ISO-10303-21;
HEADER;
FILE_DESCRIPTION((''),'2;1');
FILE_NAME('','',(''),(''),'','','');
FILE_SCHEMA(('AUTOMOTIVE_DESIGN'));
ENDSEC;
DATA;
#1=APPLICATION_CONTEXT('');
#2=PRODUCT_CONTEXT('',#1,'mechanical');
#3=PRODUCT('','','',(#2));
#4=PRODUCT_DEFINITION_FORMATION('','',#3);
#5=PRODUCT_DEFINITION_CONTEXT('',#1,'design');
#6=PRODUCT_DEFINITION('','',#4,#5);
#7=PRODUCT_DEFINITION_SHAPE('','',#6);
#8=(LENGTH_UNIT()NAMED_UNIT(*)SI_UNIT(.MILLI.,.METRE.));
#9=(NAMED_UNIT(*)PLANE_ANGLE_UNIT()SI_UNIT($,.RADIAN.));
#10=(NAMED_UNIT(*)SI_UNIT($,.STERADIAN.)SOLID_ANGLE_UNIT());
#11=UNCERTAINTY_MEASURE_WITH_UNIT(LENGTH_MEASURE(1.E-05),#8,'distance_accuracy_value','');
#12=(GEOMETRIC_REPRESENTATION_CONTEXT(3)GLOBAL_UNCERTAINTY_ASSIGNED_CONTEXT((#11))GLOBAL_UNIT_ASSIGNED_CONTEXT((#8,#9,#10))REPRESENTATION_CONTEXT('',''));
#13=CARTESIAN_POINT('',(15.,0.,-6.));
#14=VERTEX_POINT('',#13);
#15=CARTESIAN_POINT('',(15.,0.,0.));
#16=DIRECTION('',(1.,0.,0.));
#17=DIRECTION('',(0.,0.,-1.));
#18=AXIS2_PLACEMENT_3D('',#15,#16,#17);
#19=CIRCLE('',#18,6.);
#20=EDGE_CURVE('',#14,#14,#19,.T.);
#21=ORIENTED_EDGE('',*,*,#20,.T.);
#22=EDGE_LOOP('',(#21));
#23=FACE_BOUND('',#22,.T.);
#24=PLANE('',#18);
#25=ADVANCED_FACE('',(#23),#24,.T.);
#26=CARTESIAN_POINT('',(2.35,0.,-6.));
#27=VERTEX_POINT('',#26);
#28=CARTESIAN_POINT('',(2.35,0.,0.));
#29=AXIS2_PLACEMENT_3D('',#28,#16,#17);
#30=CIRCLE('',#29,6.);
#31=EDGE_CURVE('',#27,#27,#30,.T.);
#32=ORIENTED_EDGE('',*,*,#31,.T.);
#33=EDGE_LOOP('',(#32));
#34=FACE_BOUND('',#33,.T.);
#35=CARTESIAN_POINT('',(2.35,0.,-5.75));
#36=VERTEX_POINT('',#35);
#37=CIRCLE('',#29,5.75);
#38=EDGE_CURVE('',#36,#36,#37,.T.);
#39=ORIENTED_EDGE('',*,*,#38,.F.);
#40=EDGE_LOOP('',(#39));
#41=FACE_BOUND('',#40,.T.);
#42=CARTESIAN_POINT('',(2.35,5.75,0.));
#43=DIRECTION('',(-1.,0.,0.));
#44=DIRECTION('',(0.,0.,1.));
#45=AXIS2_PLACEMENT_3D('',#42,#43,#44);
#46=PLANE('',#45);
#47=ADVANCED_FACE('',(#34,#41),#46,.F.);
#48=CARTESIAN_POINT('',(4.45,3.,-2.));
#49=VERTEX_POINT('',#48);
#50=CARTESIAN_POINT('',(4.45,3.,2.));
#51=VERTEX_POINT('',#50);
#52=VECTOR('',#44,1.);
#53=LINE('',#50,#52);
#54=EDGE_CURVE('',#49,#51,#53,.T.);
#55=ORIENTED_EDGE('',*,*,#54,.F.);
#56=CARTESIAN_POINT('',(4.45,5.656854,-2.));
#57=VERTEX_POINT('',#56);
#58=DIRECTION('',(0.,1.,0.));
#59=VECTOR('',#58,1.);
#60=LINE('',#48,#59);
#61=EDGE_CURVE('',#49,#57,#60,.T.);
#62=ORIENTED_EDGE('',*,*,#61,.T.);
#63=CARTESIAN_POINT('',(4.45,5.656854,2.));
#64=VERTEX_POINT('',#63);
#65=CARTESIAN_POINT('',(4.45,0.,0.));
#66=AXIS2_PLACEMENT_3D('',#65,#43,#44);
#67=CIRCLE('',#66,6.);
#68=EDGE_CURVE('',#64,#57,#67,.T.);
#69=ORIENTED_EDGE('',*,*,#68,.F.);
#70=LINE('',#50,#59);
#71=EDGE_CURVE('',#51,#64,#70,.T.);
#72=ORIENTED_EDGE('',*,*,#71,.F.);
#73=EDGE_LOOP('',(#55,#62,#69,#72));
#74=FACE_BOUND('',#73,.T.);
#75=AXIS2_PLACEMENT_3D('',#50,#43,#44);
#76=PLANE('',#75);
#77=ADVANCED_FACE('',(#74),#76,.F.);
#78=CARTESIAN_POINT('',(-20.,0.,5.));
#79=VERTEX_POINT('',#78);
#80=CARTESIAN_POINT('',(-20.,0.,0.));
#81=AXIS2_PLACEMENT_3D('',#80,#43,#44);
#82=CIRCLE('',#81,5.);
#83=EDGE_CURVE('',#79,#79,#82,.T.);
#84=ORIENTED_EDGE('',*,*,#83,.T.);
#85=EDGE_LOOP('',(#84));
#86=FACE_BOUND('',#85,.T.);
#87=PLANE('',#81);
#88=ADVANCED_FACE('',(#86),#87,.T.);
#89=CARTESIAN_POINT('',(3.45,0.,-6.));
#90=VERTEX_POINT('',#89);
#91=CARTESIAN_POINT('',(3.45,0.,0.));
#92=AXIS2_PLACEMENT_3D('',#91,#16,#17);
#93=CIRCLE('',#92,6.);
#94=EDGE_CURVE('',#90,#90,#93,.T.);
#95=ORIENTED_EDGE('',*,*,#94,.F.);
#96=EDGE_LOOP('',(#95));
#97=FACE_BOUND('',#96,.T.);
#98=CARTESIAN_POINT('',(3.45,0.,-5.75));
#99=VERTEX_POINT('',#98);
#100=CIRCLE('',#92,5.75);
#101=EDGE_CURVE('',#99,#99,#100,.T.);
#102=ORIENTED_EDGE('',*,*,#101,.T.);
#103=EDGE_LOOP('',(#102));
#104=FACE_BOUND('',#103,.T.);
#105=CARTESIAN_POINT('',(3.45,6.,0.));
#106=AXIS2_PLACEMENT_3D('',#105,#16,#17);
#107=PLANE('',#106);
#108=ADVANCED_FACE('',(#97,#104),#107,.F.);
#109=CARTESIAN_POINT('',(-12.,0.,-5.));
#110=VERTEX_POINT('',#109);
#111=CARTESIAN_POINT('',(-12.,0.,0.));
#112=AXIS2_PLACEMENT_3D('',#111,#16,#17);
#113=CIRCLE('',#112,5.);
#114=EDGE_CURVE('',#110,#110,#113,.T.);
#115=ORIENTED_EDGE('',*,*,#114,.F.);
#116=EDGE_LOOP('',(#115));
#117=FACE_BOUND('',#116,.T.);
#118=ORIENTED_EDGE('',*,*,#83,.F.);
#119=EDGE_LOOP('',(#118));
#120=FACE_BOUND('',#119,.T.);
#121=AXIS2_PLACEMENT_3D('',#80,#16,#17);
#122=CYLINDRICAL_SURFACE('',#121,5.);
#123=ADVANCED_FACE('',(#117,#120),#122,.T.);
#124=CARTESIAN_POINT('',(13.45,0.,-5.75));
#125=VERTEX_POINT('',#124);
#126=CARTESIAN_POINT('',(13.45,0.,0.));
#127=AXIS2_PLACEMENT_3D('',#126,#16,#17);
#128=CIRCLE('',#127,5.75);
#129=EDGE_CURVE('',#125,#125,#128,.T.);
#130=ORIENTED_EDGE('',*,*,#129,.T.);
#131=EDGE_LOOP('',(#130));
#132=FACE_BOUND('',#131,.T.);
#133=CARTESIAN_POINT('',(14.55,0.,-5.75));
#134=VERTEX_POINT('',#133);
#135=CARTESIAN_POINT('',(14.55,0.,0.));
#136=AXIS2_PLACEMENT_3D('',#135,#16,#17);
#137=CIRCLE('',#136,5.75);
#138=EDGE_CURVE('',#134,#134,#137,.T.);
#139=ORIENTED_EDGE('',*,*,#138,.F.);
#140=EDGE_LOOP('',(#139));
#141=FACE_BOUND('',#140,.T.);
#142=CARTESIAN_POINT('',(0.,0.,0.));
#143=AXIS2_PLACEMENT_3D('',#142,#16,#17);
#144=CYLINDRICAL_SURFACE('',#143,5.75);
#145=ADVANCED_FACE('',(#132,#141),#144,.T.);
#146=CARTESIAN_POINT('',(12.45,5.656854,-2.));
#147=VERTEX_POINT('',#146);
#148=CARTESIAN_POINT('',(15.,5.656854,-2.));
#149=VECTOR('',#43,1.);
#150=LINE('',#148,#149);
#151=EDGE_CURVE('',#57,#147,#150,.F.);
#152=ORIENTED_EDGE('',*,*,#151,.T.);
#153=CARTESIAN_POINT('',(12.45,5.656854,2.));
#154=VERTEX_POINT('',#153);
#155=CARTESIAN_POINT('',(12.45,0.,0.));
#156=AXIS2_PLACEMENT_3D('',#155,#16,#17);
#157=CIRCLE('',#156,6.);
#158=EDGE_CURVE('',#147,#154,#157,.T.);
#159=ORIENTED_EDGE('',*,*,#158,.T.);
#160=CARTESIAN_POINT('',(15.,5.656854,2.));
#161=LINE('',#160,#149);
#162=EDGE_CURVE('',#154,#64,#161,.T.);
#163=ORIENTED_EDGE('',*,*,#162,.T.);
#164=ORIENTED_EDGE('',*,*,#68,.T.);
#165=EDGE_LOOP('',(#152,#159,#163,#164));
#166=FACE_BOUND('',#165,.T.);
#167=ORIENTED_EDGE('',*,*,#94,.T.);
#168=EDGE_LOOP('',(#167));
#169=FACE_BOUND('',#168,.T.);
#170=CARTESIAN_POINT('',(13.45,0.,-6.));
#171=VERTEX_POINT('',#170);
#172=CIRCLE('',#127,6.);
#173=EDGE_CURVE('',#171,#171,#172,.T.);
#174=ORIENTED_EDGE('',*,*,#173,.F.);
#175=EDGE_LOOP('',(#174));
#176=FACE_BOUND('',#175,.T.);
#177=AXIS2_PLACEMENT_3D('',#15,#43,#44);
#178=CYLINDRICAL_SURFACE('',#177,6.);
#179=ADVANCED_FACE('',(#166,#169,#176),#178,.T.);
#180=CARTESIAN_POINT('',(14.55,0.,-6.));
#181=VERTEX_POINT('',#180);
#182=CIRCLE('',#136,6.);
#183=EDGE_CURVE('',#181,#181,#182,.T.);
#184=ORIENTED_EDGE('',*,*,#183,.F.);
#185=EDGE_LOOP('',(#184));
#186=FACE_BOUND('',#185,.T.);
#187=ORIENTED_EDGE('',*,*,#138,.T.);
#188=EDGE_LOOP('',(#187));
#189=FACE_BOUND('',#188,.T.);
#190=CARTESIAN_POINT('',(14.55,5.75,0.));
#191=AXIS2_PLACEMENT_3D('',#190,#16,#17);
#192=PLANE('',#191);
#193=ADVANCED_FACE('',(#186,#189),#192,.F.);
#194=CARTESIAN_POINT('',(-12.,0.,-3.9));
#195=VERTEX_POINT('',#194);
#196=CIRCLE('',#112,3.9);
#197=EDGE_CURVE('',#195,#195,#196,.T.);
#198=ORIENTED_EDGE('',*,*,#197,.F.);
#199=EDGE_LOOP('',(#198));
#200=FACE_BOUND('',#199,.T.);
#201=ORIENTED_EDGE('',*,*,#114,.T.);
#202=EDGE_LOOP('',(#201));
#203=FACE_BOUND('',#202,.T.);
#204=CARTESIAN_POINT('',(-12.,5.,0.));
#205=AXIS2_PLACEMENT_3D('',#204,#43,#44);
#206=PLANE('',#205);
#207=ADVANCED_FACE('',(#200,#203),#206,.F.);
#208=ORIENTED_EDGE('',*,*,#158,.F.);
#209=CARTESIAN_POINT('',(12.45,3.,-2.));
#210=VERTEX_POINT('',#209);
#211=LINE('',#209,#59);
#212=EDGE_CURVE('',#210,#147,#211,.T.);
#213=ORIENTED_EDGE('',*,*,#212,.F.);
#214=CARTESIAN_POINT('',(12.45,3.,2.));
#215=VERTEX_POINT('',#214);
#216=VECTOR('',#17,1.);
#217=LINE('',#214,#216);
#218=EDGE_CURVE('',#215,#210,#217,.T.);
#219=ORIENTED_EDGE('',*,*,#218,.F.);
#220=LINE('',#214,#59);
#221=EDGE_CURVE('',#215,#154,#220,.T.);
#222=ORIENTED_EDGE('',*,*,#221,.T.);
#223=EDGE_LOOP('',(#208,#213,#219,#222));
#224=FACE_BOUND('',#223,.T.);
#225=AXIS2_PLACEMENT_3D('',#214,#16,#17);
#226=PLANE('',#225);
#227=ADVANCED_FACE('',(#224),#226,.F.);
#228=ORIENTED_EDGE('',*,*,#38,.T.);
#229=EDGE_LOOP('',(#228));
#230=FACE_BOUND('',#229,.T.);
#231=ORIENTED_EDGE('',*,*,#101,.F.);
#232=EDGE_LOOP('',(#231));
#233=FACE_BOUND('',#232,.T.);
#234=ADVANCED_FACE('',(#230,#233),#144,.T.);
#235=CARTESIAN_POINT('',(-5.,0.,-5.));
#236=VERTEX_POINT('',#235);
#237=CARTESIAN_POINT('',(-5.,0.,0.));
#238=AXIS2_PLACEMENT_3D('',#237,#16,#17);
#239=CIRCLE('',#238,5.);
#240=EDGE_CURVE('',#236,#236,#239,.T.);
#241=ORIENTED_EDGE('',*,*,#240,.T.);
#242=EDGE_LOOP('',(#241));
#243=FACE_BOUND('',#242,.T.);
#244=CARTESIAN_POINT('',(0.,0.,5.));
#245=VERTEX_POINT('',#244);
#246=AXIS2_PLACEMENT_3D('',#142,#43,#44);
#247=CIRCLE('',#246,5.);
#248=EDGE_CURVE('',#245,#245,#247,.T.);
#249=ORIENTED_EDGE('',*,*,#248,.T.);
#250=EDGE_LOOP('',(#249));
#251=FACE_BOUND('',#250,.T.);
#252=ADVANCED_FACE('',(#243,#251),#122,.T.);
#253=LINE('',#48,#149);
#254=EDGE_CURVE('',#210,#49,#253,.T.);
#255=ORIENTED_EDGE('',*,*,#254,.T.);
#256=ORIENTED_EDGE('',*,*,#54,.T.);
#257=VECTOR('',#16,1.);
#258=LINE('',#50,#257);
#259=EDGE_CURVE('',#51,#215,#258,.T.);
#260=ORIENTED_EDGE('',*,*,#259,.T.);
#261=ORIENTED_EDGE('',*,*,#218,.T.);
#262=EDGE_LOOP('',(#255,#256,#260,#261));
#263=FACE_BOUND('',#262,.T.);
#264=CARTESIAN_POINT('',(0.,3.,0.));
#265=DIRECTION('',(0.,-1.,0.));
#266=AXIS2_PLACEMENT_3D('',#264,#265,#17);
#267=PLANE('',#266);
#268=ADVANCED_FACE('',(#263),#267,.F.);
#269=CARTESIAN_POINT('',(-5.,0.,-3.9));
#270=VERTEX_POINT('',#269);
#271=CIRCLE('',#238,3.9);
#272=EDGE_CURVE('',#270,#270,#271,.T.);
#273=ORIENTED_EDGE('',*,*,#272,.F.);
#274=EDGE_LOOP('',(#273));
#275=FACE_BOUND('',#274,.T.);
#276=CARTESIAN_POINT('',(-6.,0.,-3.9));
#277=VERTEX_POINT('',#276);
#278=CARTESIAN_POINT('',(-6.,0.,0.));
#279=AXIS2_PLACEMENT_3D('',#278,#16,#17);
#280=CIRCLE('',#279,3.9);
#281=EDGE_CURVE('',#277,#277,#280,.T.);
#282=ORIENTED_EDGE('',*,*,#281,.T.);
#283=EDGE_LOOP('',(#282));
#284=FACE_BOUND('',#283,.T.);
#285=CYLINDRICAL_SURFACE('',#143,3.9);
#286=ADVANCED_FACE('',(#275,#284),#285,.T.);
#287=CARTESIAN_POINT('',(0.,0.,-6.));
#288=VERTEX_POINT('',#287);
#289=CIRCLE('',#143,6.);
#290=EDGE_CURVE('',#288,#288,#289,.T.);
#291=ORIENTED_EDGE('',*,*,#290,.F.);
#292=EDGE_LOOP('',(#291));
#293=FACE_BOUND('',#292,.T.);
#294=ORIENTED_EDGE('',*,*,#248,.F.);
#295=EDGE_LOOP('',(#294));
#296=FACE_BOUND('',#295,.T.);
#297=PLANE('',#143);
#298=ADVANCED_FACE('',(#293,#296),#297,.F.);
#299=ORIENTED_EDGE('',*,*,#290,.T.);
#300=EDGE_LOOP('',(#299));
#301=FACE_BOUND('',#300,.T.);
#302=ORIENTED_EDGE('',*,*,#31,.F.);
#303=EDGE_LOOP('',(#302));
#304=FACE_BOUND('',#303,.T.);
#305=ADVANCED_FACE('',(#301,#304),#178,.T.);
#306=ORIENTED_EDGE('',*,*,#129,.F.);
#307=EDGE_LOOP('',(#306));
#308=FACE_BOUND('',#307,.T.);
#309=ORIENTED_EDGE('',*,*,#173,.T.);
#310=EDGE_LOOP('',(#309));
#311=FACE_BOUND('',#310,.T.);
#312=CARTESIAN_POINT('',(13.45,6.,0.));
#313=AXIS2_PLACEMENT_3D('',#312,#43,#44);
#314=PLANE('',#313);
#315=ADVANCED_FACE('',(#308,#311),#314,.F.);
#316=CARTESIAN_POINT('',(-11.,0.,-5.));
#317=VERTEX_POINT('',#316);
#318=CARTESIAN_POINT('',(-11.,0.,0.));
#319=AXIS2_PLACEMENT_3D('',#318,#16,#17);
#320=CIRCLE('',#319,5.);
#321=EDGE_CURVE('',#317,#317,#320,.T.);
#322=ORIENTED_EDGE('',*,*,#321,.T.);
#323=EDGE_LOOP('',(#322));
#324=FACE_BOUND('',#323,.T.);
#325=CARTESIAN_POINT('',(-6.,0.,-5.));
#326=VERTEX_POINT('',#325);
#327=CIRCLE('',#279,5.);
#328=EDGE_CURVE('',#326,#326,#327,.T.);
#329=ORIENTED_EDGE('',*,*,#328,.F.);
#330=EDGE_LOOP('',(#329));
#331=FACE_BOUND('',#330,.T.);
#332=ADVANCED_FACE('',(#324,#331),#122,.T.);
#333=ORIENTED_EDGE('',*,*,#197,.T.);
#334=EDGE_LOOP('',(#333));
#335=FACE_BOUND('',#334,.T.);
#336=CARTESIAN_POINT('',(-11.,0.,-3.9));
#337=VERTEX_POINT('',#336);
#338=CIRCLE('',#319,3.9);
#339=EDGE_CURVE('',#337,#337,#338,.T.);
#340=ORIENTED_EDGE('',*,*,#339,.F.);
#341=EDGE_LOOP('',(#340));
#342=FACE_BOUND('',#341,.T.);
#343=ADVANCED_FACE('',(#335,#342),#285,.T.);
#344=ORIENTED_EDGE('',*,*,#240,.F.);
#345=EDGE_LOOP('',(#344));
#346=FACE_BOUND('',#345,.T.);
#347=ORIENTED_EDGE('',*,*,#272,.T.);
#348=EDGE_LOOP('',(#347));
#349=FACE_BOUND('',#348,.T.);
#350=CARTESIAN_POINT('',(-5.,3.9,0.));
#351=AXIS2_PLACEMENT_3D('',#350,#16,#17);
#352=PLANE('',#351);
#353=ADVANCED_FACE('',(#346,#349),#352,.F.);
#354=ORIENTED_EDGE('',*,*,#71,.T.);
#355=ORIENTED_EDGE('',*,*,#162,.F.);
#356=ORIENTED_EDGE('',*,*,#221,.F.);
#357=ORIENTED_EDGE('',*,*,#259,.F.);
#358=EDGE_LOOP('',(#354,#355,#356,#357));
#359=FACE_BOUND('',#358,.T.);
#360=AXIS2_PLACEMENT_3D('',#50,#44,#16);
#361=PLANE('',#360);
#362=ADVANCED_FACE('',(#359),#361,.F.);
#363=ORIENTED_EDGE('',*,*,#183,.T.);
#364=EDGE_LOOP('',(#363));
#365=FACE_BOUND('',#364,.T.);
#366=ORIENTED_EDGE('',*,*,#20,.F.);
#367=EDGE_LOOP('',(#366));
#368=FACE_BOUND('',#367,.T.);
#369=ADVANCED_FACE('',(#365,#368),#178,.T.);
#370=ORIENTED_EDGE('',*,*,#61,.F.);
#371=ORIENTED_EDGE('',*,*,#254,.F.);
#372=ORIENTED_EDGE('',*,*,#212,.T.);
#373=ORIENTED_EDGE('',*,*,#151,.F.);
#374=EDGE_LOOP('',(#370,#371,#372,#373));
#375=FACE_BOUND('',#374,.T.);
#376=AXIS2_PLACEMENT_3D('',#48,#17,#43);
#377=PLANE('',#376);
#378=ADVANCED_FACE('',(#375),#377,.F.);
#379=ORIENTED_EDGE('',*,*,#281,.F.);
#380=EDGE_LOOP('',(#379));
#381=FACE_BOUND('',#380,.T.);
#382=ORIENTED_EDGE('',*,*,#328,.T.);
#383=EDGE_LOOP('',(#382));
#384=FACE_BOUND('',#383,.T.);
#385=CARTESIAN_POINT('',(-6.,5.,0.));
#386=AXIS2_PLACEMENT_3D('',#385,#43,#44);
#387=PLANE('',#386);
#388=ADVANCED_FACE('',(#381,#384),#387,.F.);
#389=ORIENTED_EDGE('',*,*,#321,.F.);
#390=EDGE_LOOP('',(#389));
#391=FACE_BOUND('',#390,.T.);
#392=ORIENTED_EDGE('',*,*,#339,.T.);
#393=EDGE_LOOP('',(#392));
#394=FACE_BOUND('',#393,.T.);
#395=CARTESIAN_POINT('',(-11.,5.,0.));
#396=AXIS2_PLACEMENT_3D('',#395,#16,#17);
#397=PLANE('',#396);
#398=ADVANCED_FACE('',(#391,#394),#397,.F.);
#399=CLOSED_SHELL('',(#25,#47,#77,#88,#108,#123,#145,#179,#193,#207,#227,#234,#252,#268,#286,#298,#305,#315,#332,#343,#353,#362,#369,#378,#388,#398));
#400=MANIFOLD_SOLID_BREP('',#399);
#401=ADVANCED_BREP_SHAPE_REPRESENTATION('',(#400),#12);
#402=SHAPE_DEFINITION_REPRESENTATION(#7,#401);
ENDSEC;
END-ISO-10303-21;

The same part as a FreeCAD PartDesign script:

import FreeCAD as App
import Part
import Sketcher
Q = App.Units.Quantity


def add_polygon(sketch, points):
    """Adds a closed chain of lines whose ends are joined by coincident constraints."""
    first, n = sketch.GeometryCount, len(points)
    for a, b in zip(points, points[1:] + points[:1]):
        sketch.addGeometry(Part.LineSegment(App.Vector(*a, 0), App.Vector(*b, 0)), False)
    for i in range(n):
        sketch.addConstraint(Sketcher.Constraint("Coincident", first + i, 2, first + (i + 1) % n, 1))

doc = App.newDocument("Part")
body = doc.addObject("PartDesign::Body", "Body")

sketch1 = doc.addObject("Sketcher::SketchObject", "Sketch")
body.addObject(sketch1)
sketch1.AttachmentSupport = (doc.YZ_Plane, [""])
sketch1.MapMode = "FlatFace"
sketch1.addGeometry(Part.Circle(App.Vector(0, 0, 0), App.Vector(0, 0, 1), 6), False)
sketch1.addConstraint([
    Sketcher.Constraint("Coincident", 0, 3, -1, 1),
    Sketcher.Constraint("Diameter", 0, Q("12 mm")),
])
pad1 = doc.addObject("PartDesign::Pad", "Pad")
body.addObject(pad1)
pad1.Profile = sketch1
pad1.Length = 15

sketch2 = doc.addObject("Sketcher::SketchObject", "Sketch001")
body.addObject(sketch2)
sketch2.AttachmentSupport = (doc.YZ_Plane, [""])
sketch2.MapMode = "FlatFace"
sketch2.addGeometry(Part.Circle(App.Vector(0, 0, 0), App.Vector(0, 0, 1), 5), False)
sketch2.addConstraint([
    Sketcher.Constraint("Coincident", 0, 3, -1, 1),
    Sketcher.Constraint("Diameter", 0, Q("10 mm")),
])
pad2 = doc.addObject("PartDesign::Pad", "Pad001")
body.addObject(pad2)
pad2.Profile = sketch2
pad2.Length = 20
pad2.Reversed = True

sketch3 = doc.addObject("Sketcher::SketchObject", "Sketch002")
body.addObject(sketch3)
sketch3.AttachmentSupport = (doc.XZ_Plane, [""])
sketch3.MapMode = "FlatFace"
sketch3.AttachmentOffset = App.Placement(App.Vector(0, 0, -6), App.Rotation())
add_polygon(sketch3, [(4.5, -2), (4.5, 2), (12.4, 2), (12.4, -2)])
sketch3.addConstraint([
    Sketcher.Constraint("Vertical", 0),
    Sketcher.Constraint("Horizontal", 1),
    Sketcher.Constraint("Vertical", 2),
    Sketcher.Constraint("Horizontal", 3),
    Sketcher.Constraint("DistanceX", 1, 1, 1, 2, Q("8 mm")),
    Sketcher.Constraint("DistanceY", 0, 1, 0, 2, Q("4 mm")),
    Sketcher.Constraint("DistanceY", -1, 1, 0, 2, Q("2 mm")),
    Sketcher.Constraint("DistanceX", -1, 1, 0, 2, Q("4.45 mm")),
])
pocket1 = doc.addObject("PartDesign::Pocket", "Pocket")
body.addObject(pocket1)
pocket1.Profile = sketch3
pocket1.Length = 3
pocket1.Reversed = True

sketch4 = doc.addObject("Sketcher::SketchObject", "Sketch003")
body.addObject(sketch4)
sketch4.AttachmentSupport = (doc.XY_Plane, [""])
sketch4.MapMode = "FlatFace"
add_polygon(sketch4, [(-6, 5), (-6, 3.9), (-5, 3.9), (-5, 5)])
add_polygon(sketch4, [(-12, 5), (-12, 3.9), (-11, 3.9), (-11, 5)])
add_polygon(sketch4, [(2.35, 6), (2.35, 5.75), (3.45, 5.75), (3.45, 6)])
add_polygon(sketch4, [(13.45, 6), (13.45, 5.75), (14.55, 5.75), (14.55, 6)])
sketch4.addConstraint([
    Sketcher.Constraint("Vertical", 0),
    Sketcher.Constraint("Horizontal", 1),
    Sketcher.Constraint("Vertical", 2),
    Sketcher.Constraint("Horizontal", 3),
    Sketcher.Constraint("Vertical", 4),
    Sketcher.Constraint("Horizontal", 5),
    Sketcher.Constraint("Vertical", 6),
    Sketcher.Constraint("Horizontal", 7),
    Sketcher.Constraint("Vertical", 8),
    Sketcher.Constraint("Horizontal", 9),
    Sketcher.Constraint("Vertical", 10),
    Sketcher.Constraint("Horizontal", 11),
    Sketcher.Constraint("Vertical", 12),
    Sketcher.Constraint("Horizontal", 13),
    Sketcher.Constraint("Vertical", 14),
    Sketcher.Constraint("Horizontal", 15),
    Sketcher.Constraint("Horizontal", 1, 2, 4, 2),
    Sketcher.Constraint("Horizontal", 3, 2, 6, 2),
    Sketcher.Constraint("Horizontal", 9, 2, 12, 2),
    Sketcher.Constraint("Horizontal", 11, 2, 14, 2),
    Sketcher.Constraint("Equal", 3, 5),
    Sketcher.Constraint("Equal", 11, 13),
    Sketcher.Constraint("Equal", 15, 0),
    Sketcher.Constraint("DistanceX", 1, 1, 1, 2, Q("1 mm")),
    Sketcher.Constraint("DistanceX", 9, 1, 9, 2, Q("1.1 mm")),
    Sketcher.Constraint("DistanceX", 0, 2, -1, 1, Q("6 mm")),
    Sketcher.Constraint("DistanceY", -1, 1, 2, 2, Q("5 mm")),
    Sketcher.Constraint("DistanceX", 4, 2, -1, 1, Q("12 mm")),
    Sketcher.Constraint("DistanceY", -1, 1, 10, 2, Q("6 mm")),
    Sketcher.Constraint("DistanceX", 9, 2, 12, 2, Q("10 mm")),
    Sketcher.Constraint("DistanceY", 8, 2, 8, 1, Q("0.25 mm")),
    Sketcher.Constraint("DistanceX", -1, 1, 8, 2, Q("2.35 mm")),
])
groove = doc.addObject("PartDesign::Groove", "Groove")
body.addObject(groove)
groove.Profile = sketch4
groove.ReferenceAxis = (sketch4, ["H_Axis"])
groove.Angle = 360

doc.recompute()
